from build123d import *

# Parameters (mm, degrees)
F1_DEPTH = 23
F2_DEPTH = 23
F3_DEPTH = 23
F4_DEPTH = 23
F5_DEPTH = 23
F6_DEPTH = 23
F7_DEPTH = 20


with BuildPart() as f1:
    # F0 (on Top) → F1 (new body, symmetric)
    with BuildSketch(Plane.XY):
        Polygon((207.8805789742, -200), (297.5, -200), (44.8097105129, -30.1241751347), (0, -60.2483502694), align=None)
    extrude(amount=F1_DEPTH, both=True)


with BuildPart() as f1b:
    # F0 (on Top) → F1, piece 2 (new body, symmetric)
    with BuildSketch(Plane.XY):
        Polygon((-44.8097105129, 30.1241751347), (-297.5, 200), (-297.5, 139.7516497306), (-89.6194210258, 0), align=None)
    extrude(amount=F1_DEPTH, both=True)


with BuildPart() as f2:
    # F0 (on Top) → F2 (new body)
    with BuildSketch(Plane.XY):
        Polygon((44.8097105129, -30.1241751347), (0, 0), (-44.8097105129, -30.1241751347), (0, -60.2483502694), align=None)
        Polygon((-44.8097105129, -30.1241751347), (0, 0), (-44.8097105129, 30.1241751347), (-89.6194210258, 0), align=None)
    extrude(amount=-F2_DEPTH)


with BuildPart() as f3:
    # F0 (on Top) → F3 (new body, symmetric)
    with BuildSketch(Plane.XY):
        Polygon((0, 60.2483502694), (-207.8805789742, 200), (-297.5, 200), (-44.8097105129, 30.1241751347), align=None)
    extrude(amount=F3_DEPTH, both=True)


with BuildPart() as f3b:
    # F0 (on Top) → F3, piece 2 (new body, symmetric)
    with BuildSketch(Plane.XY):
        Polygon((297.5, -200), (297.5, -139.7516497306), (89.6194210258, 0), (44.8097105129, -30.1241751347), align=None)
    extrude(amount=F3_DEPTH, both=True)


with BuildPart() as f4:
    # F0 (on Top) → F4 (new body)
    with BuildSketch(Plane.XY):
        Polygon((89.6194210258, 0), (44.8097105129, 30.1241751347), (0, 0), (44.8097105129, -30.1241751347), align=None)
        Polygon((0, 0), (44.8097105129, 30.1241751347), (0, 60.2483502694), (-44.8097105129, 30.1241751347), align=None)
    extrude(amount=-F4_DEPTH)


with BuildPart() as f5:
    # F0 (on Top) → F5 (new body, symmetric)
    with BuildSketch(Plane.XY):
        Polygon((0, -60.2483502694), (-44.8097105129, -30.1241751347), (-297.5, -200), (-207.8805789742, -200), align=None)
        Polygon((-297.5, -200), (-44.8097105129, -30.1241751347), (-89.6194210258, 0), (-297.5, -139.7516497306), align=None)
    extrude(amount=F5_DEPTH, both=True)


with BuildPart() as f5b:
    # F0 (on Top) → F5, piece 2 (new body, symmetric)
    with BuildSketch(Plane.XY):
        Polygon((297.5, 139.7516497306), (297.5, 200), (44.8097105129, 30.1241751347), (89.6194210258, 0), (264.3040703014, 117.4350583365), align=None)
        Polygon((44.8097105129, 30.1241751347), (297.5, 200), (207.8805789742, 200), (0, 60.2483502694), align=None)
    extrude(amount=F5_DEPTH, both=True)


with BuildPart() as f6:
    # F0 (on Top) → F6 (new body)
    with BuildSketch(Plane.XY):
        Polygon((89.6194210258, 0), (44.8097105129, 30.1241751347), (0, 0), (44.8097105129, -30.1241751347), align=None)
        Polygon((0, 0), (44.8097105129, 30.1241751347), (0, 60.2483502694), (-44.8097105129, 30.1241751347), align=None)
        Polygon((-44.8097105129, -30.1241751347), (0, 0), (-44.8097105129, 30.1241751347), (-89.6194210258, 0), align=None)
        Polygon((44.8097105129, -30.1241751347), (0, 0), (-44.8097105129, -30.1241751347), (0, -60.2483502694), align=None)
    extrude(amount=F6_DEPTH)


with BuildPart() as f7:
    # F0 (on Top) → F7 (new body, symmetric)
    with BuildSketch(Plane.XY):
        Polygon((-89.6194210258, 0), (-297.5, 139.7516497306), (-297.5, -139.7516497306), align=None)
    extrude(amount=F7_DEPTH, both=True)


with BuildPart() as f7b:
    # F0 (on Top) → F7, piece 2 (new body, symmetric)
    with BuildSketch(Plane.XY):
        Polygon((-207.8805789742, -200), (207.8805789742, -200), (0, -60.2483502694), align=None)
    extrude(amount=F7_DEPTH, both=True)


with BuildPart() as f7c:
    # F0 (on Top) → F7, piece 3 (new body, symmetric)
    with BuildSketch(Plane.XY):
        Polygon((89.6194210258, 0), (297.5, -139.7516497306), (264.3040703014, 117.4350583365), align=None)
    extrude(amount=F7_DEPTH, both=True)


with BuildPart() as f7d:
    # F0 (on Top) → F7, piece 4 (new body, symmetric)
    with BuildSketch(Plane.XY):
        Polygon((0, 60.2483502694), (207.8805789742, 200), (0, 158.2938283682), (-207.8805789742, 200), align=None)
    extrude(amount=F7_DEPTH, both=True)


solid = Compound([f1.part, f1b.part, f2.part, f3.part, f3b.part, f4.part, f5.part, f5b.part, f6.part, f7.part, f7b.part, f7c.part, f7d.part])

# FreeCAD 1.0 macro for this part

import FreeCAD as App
import Part
import Sketcher
from FreeCAD import Vector
Q = App.Units.Quantity

doc = App.newDocument("Part")
body = doc.addObject("PartDesign::Body", "Body")

# Sketch on XY plane
sketch1 = body.newObject("Sketcher::SketchObject", "Sketch")
sketch1.AttachmentSupport = (doc.getObject("XY_Plane"), [""])
sketch1.MapMode = "FlatFace"
sketch1.addGeometry([
    Part.LineSegment(Vector(207.880579, -200, 0), Vector(297.5, -200, 0)),
    Part.LineSegment(Vector(297.5, -200, 0), Vector(44.809711, -30.124175, 0)),
    Part.LineSegment(Vector(44.809711, -30.124175, 0), Vector(0, -60.24835, 0)),
    Part.LineSegment(Vector(0, -60.24835, 0), Vector(207.880579, -200, 0)),
], False)
sketch1.addConstraint([
    Sketcher.Constraint("Coincident", 0, 2, 1, 1),
    Sketcher.Constraint("Coincident", 1, 2, 2, 1),
    Sketcher.Constraint("Coincident", 2, 2, 3, 1),
    Sketcher.Constraint("Coincident", 3, 2, 0, 1),
    Sketcher.Constraint("Horizontal", 0),
    Sketcher.Constraint("PointOnObject", 2, 2, -2),
    Sketcher.Constraint("Parallel", 1, 3),
    Sketcher.Constraint("DistanceY", 0, 2, -1, 1, Q("200 mm")),
    Sketcher.Constraint("DistanceX", -1, 1, 0, 2, Q("297.5 mm")),
    Sketcher.Constraint("DistanceX", 0, 1, 0, 2, Q("89.619421 mm")),
    Sketcher.Constraint("Distance", 1, Q("304.483461 mm")),
    Sketcher.Constraint("Distance", 3, Q("250.489239 mm")),
])
pad1 = body.newObject("PartDesign::Pad", "Pad")
pad1.Profile = sketch1
pad1.Length = 46
pad1.Midplane = True
body2 = doc.addObject("PartDesign::Body", "Body001")

# Sketch on XY plane
sketch2 = body2.newObject("Sketcher::SketchObject", "Sketch001")
sketch2.AttachmentSupport = (doc.getObject("XY_Plane001"), [""])
sketch2.MapMode = "FlatFace"
sketch2.addGeometry([
    Part.LineSegment(Vector(-44.809711, 30.124175, 0), Vector(-297.5, 200, 0)),
    Part.LineSegment(Vector(-297.5, 200, 0), Vector(-297.5, 139.75165, 0)),
    Part.LineSegment(Vector(-297.5, 139.75165, 0), Vector(-89.619421, 0, 0)),
    Part.LineSegment(Vector(-89.619421, 0, 0), Vector(-44.809711, 30.124175, 0)),
], False)
sketch2.addConstraint([
    Sketcher.Constraint("Coincident", 0, 2, 1, 1),
    Sketcher.Constraint("Coincident", 1, 2, 2, 1),
    Sketcher.Constraint("Coincident", 2, 2, 3, 1),
    Sketcher.Constraint("Coincident", 3, 2, 0, 1),
    Sketcher.Constraint("Vertical", 1),
    Sketcher.Constraint("PointOnObject", 2, 2, -1),
    Sketcher.Constraint("Parallel", 0, 2),
    Sketcher.Constraint("DistanceY", -1, 1, 0, 2, Q("200 mm")),
    Sketcher.Constraint("DistanceX", 0, 2, -1, 1, Q("297.5 mm")),
    Sketcher.Constraint("DistanceY", 1, 2, 1, 1, Q("60.24835 mm")),
    Sketcher.Constraint("Distance", 0, Q("304.483461 mm")),
    Sketcher.Constraint("Distance", 2, Q("250.489239 mm")),
])
pad2 = body2.newObject("PartDesign::Pad", "Pad001")
pad2.Profile = sketch2
pad2.Length = 46
pad2.Midplane = True
body3 = doc.addObject("PartDesign::Body", "Body002")

# Sketch on XY plane
sketch3 = body3.newObject("Sketcher::SketchObject", "Sketch002")
sketch3.AttachmentSupport = (doc.getObject("XY_Plane002"), [""])
sketch3.MapMode = "FlatFace"
sketch3.addGeometry([
    Part.LineSegment(Vector(44.809711, -30.124175, 0), Vector(-44.809711, 30.124175, 0)),
    Part.LineSegment(Vector(-44.809711, 30.124175, 0), Vector(-89.619421, 0, 0)),
    Part.LineSegment(Vector(-89.619421, 0, 0), Vector(0, -60.24835, 0)),
    Part.LineSegment(Vector(0, -60.24835, 0), Vector(44.809711, -30.124175, 0)),
], False)
sketch3.addConstraint([
    Sketcher.Constraint("Coincident", 0, 2, 1, 1),
    Sketcher.Constraint("Coincident", 1, 2, 2, 1),
    Sketcher.Constraint("Coincident", 2, 2, 3, 1),
    Sketcher.Constraint("Coincident", 3, 2, 0, 1),
    Sketcher.Constraint("Symmetric", 0, 2, 3, 2, -1, 1),
    Sketcher.Constraint("PointOnObject", 1, 2, -1),
    Sketcher.Constraint("PointOnObject", 2, 2, -2),
    Sketcher.Constraint("Parallel", 0, 2),
    Sketcher.Constraint("Parallel", 1, 3),
    Sketcher.Constraint("DistanceX", 0, 2, -1, 1, Q("44.809711 mm")),
    Sketcher.Constraint("DistanceY", 2, 2, -1, 1, Q("60.24835 mm")),
])
pad3 = body3.newObject("PartDesign::Pad", "Pad002")
pad3.Profile = sketch3
pad3.Length = 23
pad3.Reversed = True
body4 = doc.addObject("PartDesign::Body", "Body003")

# Sketch on XY plane
sketch4 = body4.newObject("Sketcher::SketchObject", "Sketch003")
sketch4.AttachmentSupport = (doc.getObject("XY_Plane003"), [""])
sketch4.MapMode = "FlatFace"
sketch4.addGeometry([
    Part.LineSegment(Vector(0, 60.24835, 0), Vector(-207.880579, 200, 0)),
    Part.LineSegment(Vector(-207.880579, 200, 0), Vector(-297.5, 200, 0)),
    Part.LineSegment(Vector(-297.5, 200, 0), Vector(-44.809711, 30.124175, 0)),
    Part.LineSegment(Vector(-44.809711, 30.124175, 0), Vector(0, 60.24835, 0)),
], False)
sketch4.addConstraint([
    Sketcher.Constraint("Coincident", 0, 2, 1, 1),
    Sketcher.Constraint("Coincident", 1, 2, 2, 1),
    Sketcher.Constraint("Coincident", 2, 2, 3, 1),
    Sketcher.Constraint("Coincident", 3, 2, 0, 1),
    Sketcher.Constraint("Horizontal", 1),
    Sketcher.Constraint("PointOnObject", 3, 2, -2),
    Sketcher.Constraint("Parallel", 0, 2),
    Sketcher.Constraint("DistanceY", -1, 1, 0, 2, Q("200 mm")),
    Sketcher.Constraint("DistanceX", 1, 2, -1, 1, Q("297.5 mm")),
    Sketcher.Constraint("DistanceX", 1, 2, 1, 1, Q("89.619421 mm")),
    Sketcher.Constraint("Distance", 0, Q("250.489239 mm")),
    Sketcher.Constraint("Distance", 2, Q("304.483461 mm")),
])
pad4 = body4.newObject("PartDesign::Pad", "Pad003")
pad4.Profile = sketch4
pad4.Length = 46
pad4.Midplane = True
body5 = doc.addObject("PartDesign::Body", "Body004")

# Sketch on XY plane
sketch5 = body5.newObject("Sketcher::SketchObject", "Sketch004")
sketch5.AttachmentSupport = (doc.getObject("XY_Plane004"), [""])
sketch5.MapMode = "FlatFace"
sketch5.addGeometry([
    Part.LineSegment(Vector(297.5, -200, 0), Vector(297.5, -139.75165, 0)),
    Part.LineSegment(Vector(297.5, -139.75165, 0), Vector(89.619421, 0, 0)),
    Part.LineSegment(Vector(89.619421, 0, 0), Vector(44.809711, -30.124175, 0)),
    Part.LineSegment(Vector(44.809711, -30.124175, 0), Vector(297.5, -200, 0)),
], False)
sketch5.addConstraint([
    Sketcher.Constraint("Coincident", 0, 2, 1, 1),
    Sketcher.Constraint("Coincident", 1, 2, 2, 1),
    Sketcher.Constraint("Coincident", 2, 2, 3, 1),
    Sketcher.Constraint("Coincident", 3, 2, 0, 1),
    Sketcher.Constraint("Vertical", 0),
    Sketcher.Constraint("PointOnObject", 1, 2, -1),
    Sketcher.Constraint("Parallel", 1, 3),
    Sketcher.Constraint("DistanceY", 3, 2, -1, 1, Q("200 mm")),
    Sketcher.Constraint("DistanceX", -1, 1, 0, 2, Q("297.5 mm")),
    Sketcher.Constraint("DistanceY", 0, 1, 0, 2, Q("60.24835 mm")),
    Sketcher.Constraint("Distance", 1, Q("250.489239 mm")),
    Sketcher.Constraint("Distance", 3, Q("304.483461 mm")),
])
pad5 = body5.newObject("PartDesign::Pad", "Pad004")
pad5.Profile = sketch5
pad5.Length = 46
pad5.Midplane = True
body6 = doc.addObject("PartDesign::Body", "Body005")

# Sketch on XY plane
sketch6 = body6.newObject("Sketcher::SketchObject", "Sketch005")
sketch6.AttachmentSupport = (doc.getObject("XY_Plane005"), [""])
sketch6.MapMode = "FlatFace"
sketch6.addGeometry([
    Part.LineSegment(Vector(89.619421, 0, 0), Vector(0, 60.24835, 0)),
    Part.LineSegment(Vector(0, 60.24835, 0), Vector(-44.809711, 30.124175, 0)),
    Part.LineSegment(Vector(-44.809711, 30.124175, 0), Vector(44.809711, -30.124175, 0)),
    Part.LineSegment(Vector(44.809711, -30.124175, 0), Vector(89.619421, 0, 0)),
], False)
sketch6.addConstraint([
    Sketcher.Constraint("Coincident", 0, 2, 1, 1),
    Sketcher.Constraint("Coincident", 1, 2, 2, 1),
    Sketcher.Constraint("Coincident", 2, 2, 3, 1),
    Sketcher.Constraint("Coincident", 3, 2, 0, 1),
    Sketcher.Constraint("Symmetric", 1, 2, 2, 2, -1, 1),
    Sketcher.Constraint("PointOnObject", 0, 2, -2),
    Sketcher.Constraint("PointOnObject", 3, 2, -1),
    Sketcher.Constraint("Parallel", 0, 2),
    Sketcher.Constraint("Parallel", 1, 3),
    Sketcher.Constraint("DistanceY", -1, 1, 0, 2, Q("60.24835 mm")),
    Sketcher.Constraint("DistanceX", 1, 2, -1, 1, Q("44.809711 mm")),
])
pad6 = body6.newObject("PartDesign::Pad", "Pad005")
pad6.Profile = sketch6
pad6.Length = 23
pad6.Reversed = True
body7 = doc.addObject("PartDesign::Body", "Body006")

# Sketch on XY plane
sketch7 = body7.newObject("Sketcher::SketchObject", "Sketch006")
sketch7.AttachmentSupport = (doc.getObject("XY_Plane006"), [""])
sketch7.MapMode = "FlatFace"
sketch7.addGeometry([
    Part.LineSegment(Vector(0, -60.24835, 0), Vector(-89.619421, 0, 0)),  # 0
    Part.LineSegment(Vector(-89.619421, 0, 0), Vector(-297.5, -139.75165, 0)),  # 1
    Part.LineSegment(Vector(-297.5, -139.75165, 0), Vector(-297.5, -200, 0)),  # 2
    Part.LineSegment(Vector(-297.5, -200, 0), Vector(-207.880579, -200, 0)),  # 3
    Part.LineSegment(Vector(-207.880579, -200, 0), Vector(0, -60.24835, 0)),  # 4
], False)
sketch7.addConstraint([
    Sketcher.Constraint("Coincident", 0, 2, 1, 1),
    Sketcher.Constraint("Coincident", 1, 2, 2, 1),
    Sketcher.Constraint("Coincident", 2, 2, 3, 1),
    Sketcher.Constraint("Coincident", 3, 2, 4, 1),
    Sketcher.Constraint("Coincident", 4, 2, 0, 1),
    Sketcher.Constraint("Vertical", 2),
    Sketcher.Constraint("Horizontal", 3),
    Sketcher.Constraint("PointOnObject", 0, 2, -1),
    Sketcher.Constraint("PointOnObject", 4, 2, -2),
    Sketcher.Constraint("Parallel", 1, 4),
    Sketcher.Constraint("Equal", 1, 4),
    Sketcher.Constraint("DistanceY", 2, 2, -1, 1, Q("200 mm")),
    Sketcher.Constraint("DistanceX", 1, 2, -1, 1, Q("297.5 mm")),
    Sketcher.Constraint("DistanceX", 3, 1, 3, 2, Q("89.619421 mm")),
    Sketcher.Constraint("DistanceY", 2, 2, 2, 1, Q("60.24835 mm")),
])
pad7 = body7.newObject("PartDesign::Pad", "Pad006")
pad7.Profile = sketch7
pad7.Length = 46
pad7.Midplane = True
body8 = doc.addObject("PartDesign::Body", "Body007")

# Sketch on XY plane
sketch8 = body8.newObject("Sketcher::SketchObject", "Sketch007")
sketch8.AttachmentSupport = (doc.getObject("XY_Plane007"), [""])
sketch8.MapMode = "FlatFace"
sketch8.addGeometry([
    Part.LineSegment(Vector(297.5, 139.75165, 0), Vector(297.5, 200, 0)),  # 0
    Part.LineSegment(Vector(297.5, 200, 0), Vector(207.880579, 200, 0)),  # 1
    Part.LineSegment(Vector(207.880579, 200, 0), Vector(0, 60.24835, 0)),  # 2
    Part.LineSegment(Vector(0, 60.24835, 0), Vector(89.619421, 0, 0)),  # 3
    Part.LineSegment(Vector(89.619421, 0, 0), Vector(264.30407, 117.435058, 0)),  # 4
    Part.LineSegment(Vector(264.30407, 117.435058, 0), Vector(297.5, 139.75165, 0)),  # 5
], False)
sketch8.addConstraint([
    Sketcher.Constraint("Coincident", 0, 2, 1, 1),
    Sketcher.Constraint("Coincident", 1, 2, 2, 1),
    Sketcher.Constraint("Coincident", 2, 2, 3, 1),
    Sketcher.Constraint("Coincident", 3, 2, 4, 1),
    Sketcher.Constraint("Coincident", 4, 2, 5, 1),
    Sketcher.Constraint("Coincident", 5, 2, 0, 1),
    Sketcher.Constraint("Vertical", 0),
    Sketcher.Constraint("Horizontal", 1),
    Sketcher.Constraint("PointOnObject", 2, 2, -2),
    Sketcher.Constraint("PointOnObject", 3, 2, -1),
    Sketcher.Constraint("Parallel", 2, 4),
    Sketcher.Constraint("Parallel", 4, 5),
    Sketcher.Constraint("Distance", 5, Q("40 mm")),
    Sketcher.Constraint("DistanceY", -1, 1, 0, 2, Q("200 mm")),
    Sketcher.Constraint("DistanceX", -1, 1, 0, 2, Q("297.5 mm")),
    Sketcher.Constraint("DistanceX", 1, 2, 1, 1, Q("89.619421 mm")),
    Sketcher.Constraint("DistanceY", 0, 1, 0, 2, Q("60.24835 mm")),
    Sketcher.Constraint("DistanceY", 2, 2, 5, 2, Q("79.503299 mm")),
])
pad8 = body8.newObject("PartDesign::Pad", "Pad007")
pad8.Profile = sketch8
pad8.Length = 46
pad8.Midplane = True
body9 = doc.addObject("PartDesign::Body", "Body008")

# Sketch on XY plane
sketch9 = body9.newObject("Sketcher::SketchObject", "Sketch008")
sketch9.AttachmentSupport = (doc.getObject("XY_Plane008"), [""])
sketch9.MapMode = "FlatFace"
sketch9.addGeometry([
    Part.LineSegment(Vector(89.619421, 0, 0), Vector(0, 60.24835, 0)),
    Part.LineSegment(Vector(0, 60.24835, 0), Vector(-89.619421, 0, 0)),
    Part.LineSegment(Vector(-89.619421, 0, 0), Vector(0, -60.24835, 0)),
    Part.LineSegment(Vector(0, -60.24835, 0), Vector(89.619421, 0, 0)),
], False)
sketch9.addConstraint([
    Sketcher.Constraint("Coincident", 0, 2, 1, 1),
    Sketcher.Constraint("Coincident", 1, 2, 2, 1),
    Sketcher.Constraint("Coincident", 2, 2, 3, 1),
    Sketcher.Constraint("Coincident", 3, 2, 0, 1),
    Sketcher.Constraint("Symmetric", 0, 2, 2, 2, -1, 1),
    Sketcher.Constraint("Symmetric", 1, 2, 3, 2, -1, 1),
    Sketcher.Constraint("PointOnObject", 0, 2, -2),
    Sketcher.Constraint("PointOnObject", 1, 2, -1),
    Sketcher.Constraint("DistanceY", 2, 2, 0, 2, Q("120.496701 mm")),
    Sketcher.Constraint("DistanceX", 1, 2, -1, 1, Q("89.619421 mm")),
])
pad9 = body9.newObject("PartDesign::Pad", "Pad008")
pad9.Profile = sketch9
pad9.Length = 23
body10 = doc.addObject("PartDesign::Body", "Body009")

# Sketch on XY plane
sketch10 = body10.newObject("Sketcher::SketchObject", "Sketch009")
sketch10.AttachmentSupport = (doc.getObject("XY_Plane009"), [""])
sketch10.MapMode = "FlatFace"
sketch10.addGeometry([
    Part.LineSegment(Vector(-89.619421, 0, 0), Vector(-297.5, 139.75165, 0)),
    Part.LineSegment(Vector(-297.5, 139.75165, 0), Vector(-297.5, -139.75165, 0)),
    Part.LineSegment(Vector(-297.5, -139.75165, 0), Vector(-89.619421, 0, 0)),
], False)
sketch10.addConstraint([
    Sketcher.Constraint("Coincident", 0, 2, 1, 1),
    Sketcher.Constraint("Coincident", 1, 2, 2, 1),
    Sketcher.Constraint("Coincident", 2, 2, 0, 1),
    Sketcher.Constraint("Vertical", 1),
    Sketcher.Constraint("PointOnObject", 2, 2, -1),
    Sketcher.Constraint("Equal", 0, 2),
    Sketcher.Constraint("DistanceX", 0, 2, -1, 1, Q("297.5 mm")),
    Sketcher.Constraint("DistanceY", 1, 2, 1, 1, Q("279.503299 mm")),
    Sketcher.Constraint("Distance", 0, Q("250.489239 mm")),
])
pad10 = body10.newObject("PartDesign::Pad", "Pad009")
pad10.Profile = sketch10
pad10.Length = 40
pad10.Midplane = True
body11 = doc.addObject("PartDesign::Body", "Body010")

# Sketch on XY plane
sketch11 = body11.newObject("Sketcher::SketchObject", "Sketch010")
sketch11.AttachmentSupport = (doc.getObject("XY_Plane010"), [""])
sketch11.MapMode = "FlatFace"
sketch11.addGeometry([
    Part.LineSegment(Vector(-207.880579, -200, 0), Vector(207.880579, -200, 0)),
    Part.LineSegment(Vector(207.880579, -200, 0), Vector(0, -60.24835, 0)),
    Part.LineSegment(Vector(0, -60.24835, 0), Vector(-207.880579, -200, 0)),
], False)
sketch11.addConstraint([
    Sketcher.Constraint("Coincident", 0, 2, 1, 1),
    Sketcher.Constraint("Coincident", 1, 2, 2, 1),
    Sketcher.Constraint("Coincident", 2, 2, 0, 1),
    Sketcher.Constraint("Horizontal", 0),
    Sketcher.Constraint("PointOnObject", 1, 2, -2),
    Sketcher.Constraint("Equal", 1, 2),
    Sketcher.Constraint("DistanceY", 0, 2, -1, 1, Q("200 mm")),
    Sketcher.Constraint("Distance", 1, Q("250.489239 mm")),
    Sketcher.Constraint("DistanceX", 0, 1, 0, 2, Q("415.761158 mm")),
])
pad11 = body11.newObject("PartDesign::Pad", "Pad010")
pad11.Profile = sketch11
pad11.Length = 40
pad11.Midplane = True
body12 = doc.addObject("PartDesign::Body", "Body011")

# Sketch on XY plane
sketch12 = body12.newObject("Sketcher::SketchObject", "Sketch011")
sketch12.AttachmentSupport = (doc.getObject("XY_Plane011"), [""])
sketch12.MapMode = "FlatFace"
sketch12.addGeometry([
    Part.LineSegment(Vector(89.619421, 0, 0), Vector(297.5, -139.75165, 0)),
    Part.LineSegment(Vector(297.5, -139.75165, 0), Vector(264.30407, 117.435058, 0)),
    Part.LineSegment(Vector(264.30407, 117.435058, 0), Vector(89.619421, 0, 0)),
], False)
sketch12.addConstraint([
    Sketcher.Constraint("Coincident", 0, 2, 1, 1),
    Sketcher.Constraint("Coincident", 1, 2, 2, 1),
    Sketcher.Constraint("Coincident", 2, 2, 0, 1),
    Sketcher.Constraint("PointOnObject", 2, 2, -1),
    Sketcher.Constraint("DistanceX", -1, 1, 0, 2, Q("297.5 mm")),
    Sketcher.Constraint("Distance", 0, Q("250.489239 mm")),
    Sketcher.Constraint("Distance", 2, Q("210.489239 mm")),
    Sketcher.Constraint("DistanceY", 0, 2, -1, 1, Q("139.75165 mm")),
    Sketcher.Constraint("DistanceX", -1, 1, 1, 2, Q("264.30407 mm")),
])
pad12 = body12.newObject("PartDesign::Pad", "Pad011")
pad12.Profile = sketch12
pad12.Length = 40
pad12.Midplane = True
body13 = doc.addObject("PartDesign::Body", "Body012")

# Sketch on XY plane
sketch13 = body13.newObject("Sketcher::SketchObject", "Sketch012")
sketch13.AttachmentSupport = (doc.getObject("XY_Plane012"), [""])
sketch13.MapMode = "FlatFace"
sketch13.addGeometry([
    Part.LineSegment(Vector(0, 60.24835, 0), Vector(207.880579, 200, 0)),
    Part.LineSegment(Vector(207.880579, 200, 0), Vector(0, 158.293828, 0)),
    Part.LineSegment(Vector(0, 158.293828, 0), Vector(-207.880579, 200, 0)),
    Part.LineSegment(Vector(-207.880579, 200, 0), Vector(0, 60.24835, 0)),
], False)
sketch13.addConstraint([
    Sketcher.Constraint("Coincident", 0, 2, 1, 1),
    Sketcher.Constraint("Coincident", 1, 2, 2, 1),
    Sketcher.Constraint("Coincident", 2, 2, 3, 1),
    Sketcher.Constraint("Coincident", 3, 2, 0, 1),
    Sketcher.Constraint("Symmetric", 0, 2, 2, 2, -2),
    Sketcher.Constraint("PointOnObject", 1, 2, -2),
    Sketcher.Constraint("PointOnObject", 3, 2, -2),
    Sketcher.Constraint("DistanceY", -1, 1, 0, 2, Q("200 mm")),
    Sketcher.Constraint("Distance", 0, Q("250.489239 mm")),
    Sketcher.Constraint("Distance", 1, Q("212.02297 mm")),
    Sketcher.Constraint("DistanceX", -1, 1, 0, 2, Q("207.880579 mm")),
])
pad13 = body13.newObject("PartDesign::Pad", "Pad012")
pad13.Profile = sketch13
pad13.Length = 40
pad13.Midplane = True

doc.recompute()
